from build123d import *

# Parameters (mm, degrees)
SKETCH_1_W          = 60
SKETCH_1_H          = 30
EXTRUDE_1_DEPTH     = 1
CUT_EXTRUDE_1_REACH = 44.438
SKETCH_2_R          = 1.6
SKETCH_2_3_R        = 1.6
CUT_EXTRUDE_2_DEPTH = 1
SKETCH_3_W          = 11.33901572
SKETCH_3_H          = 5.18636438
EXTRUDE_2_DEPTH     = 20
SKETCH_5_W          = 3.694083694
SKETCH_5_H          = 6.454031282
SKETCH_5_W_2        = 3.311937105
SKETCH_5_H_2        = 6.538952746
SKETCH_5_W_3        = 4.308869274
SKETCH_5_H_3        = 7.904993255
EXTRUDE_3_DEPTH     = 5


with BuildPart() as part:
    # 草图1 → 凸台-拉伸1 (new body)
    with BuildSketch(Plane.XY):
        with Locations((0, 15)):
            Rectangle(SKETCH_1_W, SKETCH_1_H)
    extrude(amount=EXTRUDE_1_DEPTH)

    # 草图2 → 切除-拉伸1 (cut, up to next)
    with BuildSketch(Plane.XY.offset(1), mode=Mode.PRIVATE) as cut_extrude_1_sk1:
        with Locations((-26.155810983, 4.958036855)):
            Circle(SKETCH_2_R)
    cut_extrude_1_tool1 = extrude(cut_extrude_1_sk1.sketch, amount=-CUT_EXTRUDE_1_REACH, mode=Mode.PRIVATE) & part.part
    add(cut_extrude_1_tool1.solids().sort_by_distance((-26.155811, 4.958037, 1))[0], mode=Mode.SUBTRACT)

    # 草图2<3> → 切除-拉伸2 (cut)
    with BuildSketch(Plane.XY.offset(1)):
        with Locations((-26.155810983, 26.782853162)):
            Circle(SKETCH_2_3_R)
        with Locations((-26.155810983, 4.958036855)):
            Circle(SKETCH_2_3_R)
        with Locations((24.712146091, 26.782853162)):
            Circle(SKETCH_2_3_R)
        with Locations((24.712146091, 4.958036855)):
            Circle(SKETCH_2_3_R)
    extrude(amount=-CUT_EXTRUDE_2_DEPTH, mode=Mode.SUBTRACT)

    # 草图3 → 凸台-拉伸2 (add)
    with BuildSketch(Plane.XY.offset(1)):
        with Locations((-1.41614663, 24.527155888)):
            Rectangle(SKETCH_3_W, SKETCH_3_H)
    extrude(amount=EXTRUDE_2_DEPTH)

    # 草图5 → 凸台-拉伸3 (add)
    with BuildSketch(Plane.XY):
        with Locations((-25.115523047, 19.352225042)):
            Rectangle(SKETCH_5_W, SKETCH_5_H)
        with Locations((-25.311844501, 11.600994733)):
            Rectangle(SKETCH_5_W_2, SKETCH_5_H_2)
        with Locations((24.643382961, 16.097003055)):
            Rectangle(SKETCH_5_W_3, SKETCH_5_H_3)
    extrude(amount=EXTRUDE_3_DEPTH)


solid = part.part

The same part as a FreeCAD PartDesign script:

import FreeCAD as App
import Part
import Sketcher
Q = App.Units.Quantity


def add_polygon(sketch, points):
    """Adds a closed chain of lines whose ends are joined by coincident constraints."""
    first, n = sketch.GeometryCount, len(points)
    for a, b in zip(points, points[1:] + points[:1]):
        sketch.addGeometry(Part.LineSegment(App.Vector(*a, 0), App.Vector(*b, 0)), False)
    for i in range(n):
        sketch.addConstraint(Sketcher.Constraint("Coincident", first + i, 2, first + (i + 1) % n, 1))

doc = App.newDocument("Part")
body = doc.addObject("PartDesign::Body", "Body")

sketch1 = body.newObject("Sketcher::SketchObject", "Sketch")
sketch1.AttachmentSupport = (doc.getObject("XY_Plane"), [""])
sketch1.MapMode = "FlatFace"
add_polygon(sketch1, [(-30, 30), (-30, 0), (30, 0), (30, 30)])
sketch1.addConstraint([
    Sketcher.Constraint("Vertical", 0),
    Sketcher.Constraint("Horizontal", 1),
    Sketcher.Constraint("Vertical", 2),
    Sketcher.Constraint("Horizontal", 3),
    Sketcher.Constraint("Symmetric", 0, 2, 1, 2, -1, 1),
    Sketcher.Constraint("DistanceX", 1, 1, 1, 2, Q("60 mm")),
    Sketcher.Constraint("DistanceY", 0, 2, 0, 1, Q("30 mm")),
])
pad1 = body.newObject("PartDesign::Pad", "Pad")
pad1.Profile = sketch1
pad1.Length = 1

sketch2 = body.newObject("Sketcher::SketchObject", "Sketch001")
sketch2.AttachmentSupport = (doc.getObject("XY_Plane"), [""])
sketch2.MapMode = "FlatFace"
sketch2.AttachmentOffset = App.Placement(App.Vector(0, 0, 1), App.Rotation())
sketch2.addGeometry(Part.Circle(App.Vector(-26.155811, 4.958037, 0), App.Vector(0, 0, 1), 1.6), False)
sketch2.addConstraint([
    Sketcher.Constraint("Diameter", 0, Q("3.2 mm")),
    Sketcher.Constraint("DistanceX", 0, 3, -1, 1, Q("26.155811 mm")),
    Sketcher.Constraint("DistanceY", -1, 1, 0, 3, Q("4.958037 mm")),
])
pocket1 = body.newObject("PartDesign::Pocket", "Pocket")
pocket1.Profile = sketch2
pocket1.Type = "UpToFirst"

sketch3 = body.newObject("Sketcher::SketchObject", "Sketch002")
sketch3.AttachmentSupport = (doc.getObject("XY_Plane"), [""])
sketch3.MapMode = "FlatFace"
sketch3.AttachmentOffset = App.Placement(App.Vector(0, 0, 1), App.Rotation())
sketch3.addGeometry([
    Part.Circle(App.Vector(-26.155811, 26.782853, 0), App.Vector(0, 0, 1), 1.6),
    Part.Circle(App.Vector(-26.155811, 4.958037, 0), App.Vector(0, 0, 1), 1.6),
    Part.Circle(App.Vector(24.712146, 26.782853, 0), App.Vector(0, 0, 1), 1.6),
    Part.Circle(App.Vector(24.712146, 4.958037, 0), App.Vector(0, 0, 1), 1.6),
], False)
sketch3.addConstraint([
    Sketcher.Constraint("Equal", 0, 1),
    Sketcher.Constraint("Equal", 1, 2),
    Sketcher.Constraint("Equal", 2, 3),
    Sketcher.Constraint("Horizontal", 0, 3, 2, 3),
    Sketcher.Constraint("Horizontal", 1, 3, 3, 3),
    Sketcher.Constraint("Vertical", 0, 3, 1, 3),
    Sketcher.Constraint("Vertical", 2, 3, 3, 3),
    Sketcher.Constraint("Diameter", 0, Q("3.2 mm")),
    Sketcher.Constraint("DistanceX", 0, 3, -1, 1, Q("26.155811 mm")),
    Sketcher.Constraint("DistanceY", -1, 1, 0, 3, Q("26.782853 mm")),
    Sketcher.Constraint("DistanceY", -1, 1, 1, 3, Q("4.958037 mm")),
    Sketcher.Constraint("DistanceX", -1, 1, 2, 3, Q("24.712146 mm")),
])
pocket2 = body.newObject("PartDesign::Pocket", "Pocket001")
pocket2.Profile = sketch3
pocket2.Length = 1

sketch4 = body.newObject("Sketcher::SketchObject", "Sketch003")
sketch4.AttachmentSupport = (doc.getObject("XY_Plane"), [""])
sketch4.MapMode = "FlatFace"
sketch4.AttachmentOffset = App.Placement(App.Vector(0, 0, 1), App.Rotation())
add_polygon(sketch4, [(-7.085654, 27.120338), (-7.085654, 21.933974), (4.253361, 21.933974), (4.253361, 27.120338)])
sketch4.addConstraint([
    Sketcher.Constraint("Vertical", 0),
    Sketcher.Constraint("Horizontal", 1),
    Sketcher.Constraint("Vertical", 2),
    Sketcher.Constraint("Horizontal", 3),
    Sketcher.Constraint("DistanceX", 1, 1, 1, 2, Q("11.339016 mm")),
    Sketcher.Constraint("DistanceY", 0, 2, 0, 1, Q("5.186364 mm")),
    Sketcher.Constraint("DistanceX", -1, 1, 1, 2, Q("4.253361 mm")),
    Sketcher.Constraint("DistanceY", -1, 1, 2, 2, Q("27.120338 mm")),
])
pad2 = body.newObject("PartDesign::Pad", "Pad001")
pad2.Profile = sketch4
pad2.Length = 20

sketch5 = body.newObject("Sketcher::SketchObject", "Sketch004")
sketch5.AttachmentSupport = (doc.getObject("XY_Plane"), [""])
sketch5.MapMode = "FlatFace"
add_polygon(sketch5, [(-26.962565, 22.579241), (-26.962565, 16.125209), (-23.268481, 16.125209), (-23.268481, 22.579241)])
add_polygon(sketch5, [(-26.967813, 14.870471), (-26.967813, 8.331518), (-23.655876, 8.331518), (-23.655876, 14.870471)])
add_polygon(sketch5, [(22.488948, 20.0495), (22.488948, 12.144506), (26.797818, 12.144506), (26.797818, 20.0495)])
sketch5.addConstraint([
    Sketcher.Constraint("Vertical", 0),
    Sketcher.Constraint("Horizontal", 1),
    Sketcher.Constraint("Vertical", 2),
    Sketcher.Constraint("Horizontal", 3),
    Sketcher.Constraint("Vertical", 4),
    Sketcher.Constraint("Horizontal", 5),
    Sketcher.Constraint("Vertical", 6),
    Sketcher.Constraint("Horizontal", 7),
    Sketcher.Constraint("Vertical", 8),
    Sketcher.Constraint("Horizontal", 9),
    Sketcher.Constraint("Vertical", 10),
    Sketcher.Constraint("Horizontal", 11),
    Sketcher.Constraint("DistanceX", 9, 1, 9, 2, Q("4.308869 mm")),
    Sketcher.Constraint("DistanceY", 0, 2, 0, 1, Q("6.454031 mm")),
    Sketcher.Constraint("DistanceY", -1, 1, 10, 2, Q("20.0495 mm")),
    Sketcher.Constraint("DistanceX", 1, 2, 9, 2, Q("50.066299 mm")),
    Sketcher.Constraint("DistanceX", 1, 1, 1, 2, Q("3.694084 mm")),
    Sketcher.Constraint("DistanceX", 5, 1, 5, 2, Q("3.311937 mm")),
    Sketcher.Constraint("DistanceY", 4, 2, 4, 1, Q("6.538953 mm")),
    Sketcher.Constraint("DistanceY", 8, 2, 8, 1, Q("7.904993 mm")),
    Sketcher.Constraint("DistanceY", -1, 1, 0, 2, Q("16.125209 mm")),
    Sketcher.Constraint("DistanceX", 1, 2, -1, 1, Q("23.268481 mm")),
    Sketcher.Constraint("DistanceY", -1, 1, 4, 2, Q("8.331518 mm")),
    Sketcher.Constraint("DistanceX", 4, 2, 0, 2, Q("0.005248 mm")),
])
pad3 = body.newObject("PartDesign::Pad", "Pad002")
pad3.Profile = sketch5
pad3.Length = 5

doc.recompute()
